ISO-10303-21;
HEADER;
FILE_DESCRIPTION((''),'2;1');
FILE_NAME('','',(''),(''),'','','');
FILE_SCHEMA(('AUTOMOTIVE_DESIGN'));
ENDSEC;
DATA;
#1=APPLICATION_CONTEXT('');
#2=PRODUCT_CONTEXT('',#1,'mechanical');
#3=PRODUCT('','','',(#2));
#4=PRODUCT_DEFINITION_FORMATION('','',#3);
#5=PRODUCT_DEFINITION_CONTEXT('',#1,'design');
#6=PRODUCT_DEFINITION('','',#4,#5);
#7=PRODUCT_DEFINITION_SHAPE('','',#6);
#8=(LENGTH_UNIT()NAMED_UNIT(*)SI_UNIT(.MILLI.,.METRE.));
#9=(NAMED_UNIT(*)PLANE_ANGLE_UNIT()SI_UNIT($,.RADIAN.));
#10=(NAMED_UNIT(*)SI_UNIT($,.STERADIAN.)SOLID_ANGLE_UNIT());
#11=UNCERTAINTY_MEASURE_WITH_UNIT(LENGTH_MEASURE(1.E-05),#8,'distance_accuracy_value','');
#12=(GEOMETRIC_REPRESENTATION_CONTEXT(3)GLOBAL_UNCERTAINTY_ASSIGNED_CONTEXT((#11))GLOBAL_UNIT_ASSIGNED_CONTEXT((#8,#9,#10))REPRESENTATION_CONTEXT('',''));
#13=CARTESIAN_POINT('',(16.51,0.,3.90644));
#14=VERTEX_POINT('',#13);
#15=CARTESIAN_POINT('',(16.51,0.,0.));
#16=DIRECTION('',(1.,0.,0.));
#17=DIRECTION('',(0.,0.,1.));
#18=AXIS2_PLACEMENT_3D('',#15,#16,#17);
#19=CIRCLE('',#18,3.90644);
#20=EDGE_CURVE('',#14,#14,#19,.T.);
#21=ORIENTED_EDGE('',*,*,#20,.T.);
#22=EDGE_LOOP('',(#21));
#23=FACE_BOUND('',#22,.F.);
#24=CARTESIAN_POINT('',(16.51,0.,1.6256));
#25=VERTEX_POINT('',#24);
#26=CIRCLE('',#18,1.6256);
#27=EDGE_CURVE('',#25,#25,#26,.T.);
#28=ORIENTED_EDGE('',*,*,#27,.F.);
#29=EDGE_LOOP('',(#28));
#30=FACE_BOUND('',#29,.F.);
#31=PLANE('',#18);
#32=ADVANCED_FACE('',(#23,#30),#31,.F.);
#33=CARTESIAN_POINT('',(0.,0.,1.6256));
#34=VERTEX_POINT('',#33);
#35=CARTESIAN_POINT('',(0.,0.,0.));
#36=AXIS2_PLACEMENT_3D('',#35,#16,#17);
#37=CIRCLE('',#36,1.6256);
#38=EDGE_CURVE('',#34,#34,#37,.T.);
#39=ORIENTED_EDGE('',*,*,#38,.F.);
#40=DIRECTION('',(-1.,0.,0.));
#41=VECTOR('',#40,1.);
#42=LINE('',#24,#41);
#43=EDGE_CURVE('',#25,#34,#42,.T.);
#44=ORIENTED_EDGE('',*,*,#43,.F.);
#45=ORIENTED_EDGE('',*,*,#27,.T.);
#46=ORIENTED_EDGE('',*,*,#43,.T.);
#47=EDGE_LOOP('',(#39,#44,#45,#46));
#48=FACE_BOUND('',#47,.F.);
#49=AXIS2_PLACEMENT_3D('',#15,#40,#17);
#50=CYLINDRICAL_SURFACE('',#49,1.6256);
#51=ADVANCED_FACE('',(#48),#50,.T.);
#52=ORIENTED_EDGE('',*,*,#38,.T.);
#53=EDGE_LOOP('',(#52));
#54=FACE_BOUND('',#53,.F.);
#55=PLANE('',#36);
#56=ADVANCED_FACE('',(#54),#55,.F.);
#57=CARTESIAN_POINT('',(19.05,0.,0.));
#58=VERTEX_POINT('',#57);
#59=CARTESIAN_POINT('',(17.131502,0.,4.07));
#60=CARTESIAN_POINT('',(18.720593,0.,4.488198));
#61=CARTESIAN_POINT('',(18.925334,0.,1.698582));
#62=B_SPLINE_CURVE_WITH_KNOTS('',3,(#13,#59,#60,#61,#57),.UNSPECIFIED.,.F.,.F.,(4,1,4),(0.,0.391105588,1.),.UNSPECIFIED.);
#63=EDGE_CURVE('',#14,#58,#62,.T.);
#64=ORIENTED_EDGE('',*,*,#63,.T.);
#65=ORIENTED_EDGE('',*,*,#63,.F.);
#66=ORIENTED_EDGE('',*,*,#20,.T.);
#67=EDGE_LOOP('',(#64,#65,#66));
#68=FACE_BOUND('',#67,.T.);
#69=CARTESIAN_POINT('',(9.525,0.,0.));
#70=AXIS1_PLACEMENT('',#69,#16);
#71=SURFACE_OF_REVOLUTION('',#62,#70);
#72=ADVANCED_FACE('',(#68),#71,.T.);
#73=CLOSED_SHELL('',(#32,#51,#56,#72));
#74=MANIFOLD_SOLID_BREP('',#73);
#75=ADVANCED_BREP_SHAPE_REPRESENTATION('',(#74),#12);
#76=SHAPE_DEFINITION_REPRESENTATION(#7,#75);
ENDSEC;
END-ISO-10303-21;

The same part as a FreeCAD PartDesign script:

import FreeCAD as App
import Part
import Sketcher
from FreeCAD import Vector
Q = App.Units.Quantity

doc = App.newDocument("Part")
params = doc.addObject("Spreadsheet::Sheet", "Params")
for row, (alias, value) in enumerate([
    ("sketch1_height", "0.064 in"),
    ("revolution_angle", "360 deg"),
], start=1):
    params.set(f"A{row}", alias)
    params.set(f"B{row}", "=" + value)
    params.setAlias(f"B{row}", alias)

body = doc.addObject("PartDesign::Body", "Body")

# Sketch on XZ plane
sketch1 = doc.addObject("Sketcher::SketchObject", "Sketch")
body.addObject(sketch1)
sketch1.AttachmentSupport = (doc.XZ_Plane, [""])
sketch1.MapMode = "FlatFace"
sketch1.addGeometry([
    Part.LineSegment(Vector(0, 1.6256, 0), Vector(0, 0, 0)),  # 0
    Part.LineSegment(Vector(0, 0, 0), Vector(19.05, 0, 0)),  # 1
    Part.BSplineCurve([Vector(16.51, 3.90644, 0), Vector(17.131502, 4.07, 0), Vector(18.720593, 4.488198, 0), Vector(18.925334, 1.698582, 0), Vector(19.05, 0, 0)], [4, 1, 4], [0, 0.391105588, 1], False, 3, [1, 1, 1, 1, 1], False),  # 2
    Part.LineSegment(Vector(16.51, 3.90644, 0), Vector(16.51, 1.6256, 0)),  # 3
    Part.LineSegment(Vector(16.51, 1.6256, 0), Vector(0, 1.6256, 0)),  # 4
], False)
sketch1.addConstraint([
    Sketcher.Constraint("Block", 2),
    Sketcher.Constraint("Coincident", 0, 2, 1, 1),
    Sketcher.Constraint("Coincident", 1, 2, 2, 2),
    Sketcher.Constraint("Coincident", 2, 1, 3, 1),
    Sketcher.Constraint("Coincident", 3, 2, 4, 1),
    Sketcher.Constraint("Coincident", 4, 2, 0, 1),
    Sketcher.Constraint("Vertical", 0),
    Sketcher.Constraint("Horizontal", 1),
    Sketcher.Constraint("Vertical", 3),
    Sketcher.Constraint("Horizontal", 4),
    Sketcher.Constraint("PointOnObject", 4, 2, -2),
    Sketcher.Constraint("DistanceY", 0, 2, 0, 1, Q("0.064 in")),
])
sketch1.setExpression("Constraints[11]", "Params.sketch1_height")
revolution = doc.addObject("PartDesign::Revolution", "Revolution")
body.addObject(revolution)
revolution.Profile = sketch1
revolution.ReferenceAxis = (sketch1, ["H_Axis"])
revolution.setExpression("Angle", "Params.revolution_angle")

doc.recompute()
